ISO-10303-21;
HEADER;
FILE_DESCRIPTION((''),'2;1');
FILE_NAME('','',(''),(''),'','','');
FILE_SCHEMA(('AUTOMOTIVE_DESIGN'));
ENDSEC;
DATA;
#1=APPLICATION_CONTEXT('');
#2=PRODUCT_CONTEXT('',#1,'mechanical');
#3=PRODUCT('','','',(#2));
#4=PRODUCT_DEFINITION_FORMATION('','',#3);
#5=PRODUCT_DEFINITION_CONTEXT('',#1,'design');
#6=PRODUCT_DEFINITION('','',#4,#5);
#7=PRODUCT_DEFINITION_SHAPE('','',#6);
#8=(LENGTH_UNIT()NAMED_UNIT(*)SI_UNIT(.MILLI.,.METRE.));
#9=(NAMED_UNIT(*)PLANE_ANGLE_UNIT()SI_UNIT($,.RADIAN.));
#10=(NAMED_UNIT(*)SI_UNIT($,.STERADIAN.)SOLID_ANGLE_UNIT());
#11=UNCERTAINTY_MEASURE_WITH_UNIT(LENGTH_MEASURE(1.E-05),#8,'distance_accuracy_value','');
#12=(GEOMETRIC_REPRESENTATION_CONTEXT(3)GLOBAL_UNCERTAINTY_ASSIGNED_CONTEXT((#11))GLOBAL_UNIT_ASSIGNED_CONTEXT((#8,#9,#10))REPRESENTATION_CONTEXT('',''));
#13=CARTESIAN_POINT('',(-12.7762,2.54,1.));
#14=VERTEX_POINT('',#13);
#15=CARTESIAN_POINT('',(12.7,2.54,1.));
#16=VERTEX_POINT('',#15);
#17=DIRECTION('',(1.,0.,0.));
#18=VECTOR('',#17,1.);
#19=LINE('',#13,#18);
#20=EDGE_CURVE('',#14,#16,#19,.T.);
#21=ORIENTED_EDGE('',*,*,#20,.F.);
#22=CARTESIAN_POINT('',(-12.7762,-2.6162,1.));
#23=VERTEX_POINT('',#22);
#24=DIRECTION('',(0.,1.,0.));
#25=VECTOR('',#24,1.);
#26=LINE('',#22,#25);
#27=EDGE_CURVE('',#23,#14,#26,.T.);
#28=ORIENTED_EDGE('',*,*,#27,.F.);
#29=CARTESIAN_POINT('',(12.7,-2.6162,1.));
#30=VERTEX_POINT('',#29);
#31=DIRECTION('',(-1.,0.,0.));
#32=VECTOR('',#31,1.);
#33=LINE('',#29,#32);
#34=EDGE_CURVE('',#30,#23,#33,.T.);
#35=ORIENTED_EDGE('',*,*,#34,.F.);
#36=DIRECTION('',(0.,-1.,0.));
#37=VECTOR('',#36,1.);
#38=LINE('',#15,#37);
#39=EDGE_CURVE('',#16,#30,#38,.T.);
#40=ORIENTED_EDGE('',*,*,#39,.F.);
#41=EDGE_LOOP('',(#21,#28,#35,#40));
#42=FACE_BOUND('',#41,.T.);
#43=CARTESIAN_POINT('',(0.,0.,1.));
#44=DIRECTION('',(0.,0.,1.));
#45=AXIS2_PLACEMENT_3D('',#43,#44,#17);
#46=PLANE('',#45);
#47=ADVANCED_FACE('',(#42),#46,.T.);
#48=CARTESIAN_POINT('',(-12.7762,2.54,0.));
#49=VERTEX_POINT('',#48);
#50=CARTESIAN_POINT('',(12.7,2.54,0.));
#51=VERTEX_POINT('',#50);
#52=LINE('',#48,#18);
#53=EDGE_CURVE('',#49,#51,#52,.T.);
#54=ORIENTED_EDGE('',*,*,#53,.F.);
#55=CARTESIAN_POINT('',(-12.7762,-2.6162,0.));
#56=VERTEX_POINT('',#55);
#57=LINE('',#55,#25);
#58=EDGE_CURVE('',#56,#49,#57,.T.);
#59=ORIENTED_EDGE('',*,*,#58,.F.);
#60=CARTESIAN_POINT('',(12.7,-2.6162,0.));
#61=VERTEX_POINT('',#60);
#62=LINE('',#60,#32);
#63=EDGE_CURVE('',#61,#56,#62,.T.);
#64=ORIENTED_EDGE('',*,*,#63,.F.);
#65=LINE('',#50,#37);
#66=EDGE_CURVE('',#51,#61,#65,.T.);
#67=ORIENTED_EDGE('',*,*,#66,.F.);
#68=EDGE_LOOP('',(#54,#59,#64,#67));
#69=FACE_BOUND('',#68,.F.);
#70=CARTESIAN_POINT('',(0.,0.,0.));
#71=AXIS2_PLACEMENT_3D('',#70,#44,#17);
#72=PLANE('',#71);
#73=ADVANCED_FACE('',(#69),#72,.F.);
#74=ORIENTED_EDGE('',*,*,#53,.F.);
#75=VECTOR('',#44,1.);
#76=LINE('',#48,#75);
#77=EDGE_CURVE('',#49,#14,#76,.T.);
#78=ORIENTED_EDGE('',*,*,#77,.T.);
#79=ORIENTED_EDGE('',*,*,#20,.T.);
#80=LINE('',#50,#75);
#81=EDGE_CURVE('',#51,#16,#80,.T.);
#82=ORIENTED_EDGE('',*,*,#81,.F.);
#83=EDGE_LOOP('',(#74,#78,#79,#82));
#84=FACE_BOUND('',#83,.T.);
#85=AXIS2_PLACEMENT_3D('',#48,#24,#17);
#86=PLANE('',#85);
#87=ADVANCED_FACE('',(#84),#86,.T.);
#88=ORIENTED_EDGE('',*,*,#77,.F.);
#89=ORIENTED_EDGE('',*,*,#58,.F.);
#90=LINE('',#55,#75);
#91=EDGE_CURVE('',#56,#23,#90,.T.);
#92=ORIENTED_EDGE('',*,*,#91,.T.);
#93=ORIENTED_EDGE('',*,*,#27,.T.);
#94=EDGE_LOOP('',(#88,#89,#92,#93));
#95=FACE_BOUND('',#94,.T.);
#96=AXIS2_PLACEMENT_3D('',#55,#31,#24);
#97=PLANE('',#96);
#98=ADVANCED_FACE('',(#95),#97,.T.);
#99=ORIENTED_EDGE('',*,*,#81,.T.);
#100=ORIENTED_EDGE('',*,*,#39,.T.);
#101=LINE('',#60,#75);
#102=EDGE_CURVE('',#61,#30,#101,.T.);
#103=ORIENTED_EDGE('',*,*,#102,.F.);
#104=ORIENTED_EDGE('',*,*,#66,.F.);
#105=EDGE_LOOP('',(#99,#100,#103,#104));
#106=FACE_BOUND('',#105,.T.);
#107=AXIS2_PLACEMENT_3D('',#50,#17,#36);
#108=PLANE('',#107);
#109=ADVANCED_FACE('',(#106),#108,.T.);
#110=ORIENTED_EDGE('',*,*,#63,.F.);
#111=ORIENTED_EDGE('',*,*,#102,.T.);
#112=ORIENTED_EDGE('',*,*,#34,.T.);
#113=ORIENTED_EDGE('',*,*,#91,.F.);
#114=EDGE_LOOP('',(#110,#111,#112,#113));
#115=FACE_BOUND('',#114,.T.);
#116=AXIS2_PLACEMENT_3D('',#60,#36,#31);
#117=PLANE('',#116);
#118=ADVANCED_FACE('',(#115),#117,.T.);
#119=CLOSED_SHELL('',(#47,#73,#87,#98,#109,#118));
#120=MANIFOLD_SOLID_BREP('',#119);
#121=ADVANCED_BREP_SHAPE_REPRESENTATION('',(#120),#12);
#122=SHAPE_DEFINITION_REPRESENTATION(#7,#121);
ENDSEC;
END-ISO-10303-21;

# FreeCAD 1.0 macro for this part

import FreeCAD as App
import Part
import Sketcher

V = App.Vector
Q = App.Units.Quantity


def add_polygon(sketch, points):
    """Adds a closed chain of lines whose ends are joined by coincident constraints."""
    first, n = sketch.GeometryCount, len(points)
    for a, b in zip(points, points[1:] + points[:1]):
        sketch.addGeometry(Part.LineSegment(App.Vector(*a, 0), App.Vector(*b, 0)), False)
    for i in range(n):
        sketch.addConstraint(Sketcher.Constraint("Coincident", first + i, 2, first + (i + 1) % n, 1))

doc = App.newDocument("Part")
params = doc.addObject("Spreadsheet::Sheet", "Params")
for row, (alias, value) in enumerate([
    ("sketch1_width", "1.003 in"),
    ("sketch1_height", "0.203 in"),
    ("pad1_length", "1 mm"),
], start=1):
    params.set(f"A{row}", alias)
    params.set(f"B{row}", "=" + value)
    params.setAlias(f"B{row}", alias)

body = doc.addObject("PartDesign::Body", "Body")

sketch1 = doc.addObject("Sketcher::SketchObject", "Sketch")
body.addObject(sketch1)
sketch1.AttachmentSupport = (doc.XY_Plane, [""])
sketch1.MapMode = "FlatFace"
add_polygon(sketch1, [(12.7, 2.54), (-12.7762, 2.54), (-12.7762, -2.6162), (12.7, -2.6162)])
sketch1.addConstraint([
    Sketcher.Constraint("Horizontal", 0),
    Sketcher.Constraint("Vertical", 1),
    Sketcher.Constraint("Horizontal", 2),
    Sketcher.Constraint("Vertical", 3),
    Sketcher.Constraint("DistanceY", -1, 1, 0, 2, Q("0.1 in")),
    Sketcher.Constraint("DistanceX", -1, 1, 2, 2, Q("0.5 in")),
    Sketcher.Constraint("DistanceX", 0, 2, 0, 1, Q("1.003 in")),
    Sketcher.Constraint("DistanceY", 1, 2, 1, 1, Q("0.203 in")),
])
sketch1.setExpression("Constraints[10]", "Params.sketch1_width")
sketch1.setExpression("Constraints[11]", "Params.sketch1_height")
pad1 = doc.addObject("PartDesign::Pad", "Pad")
body.addObject(pad1)
pad1.Profile = sketch1
pad1.setExpression("Length", "Params.pad1_length")

doc.recompute()
